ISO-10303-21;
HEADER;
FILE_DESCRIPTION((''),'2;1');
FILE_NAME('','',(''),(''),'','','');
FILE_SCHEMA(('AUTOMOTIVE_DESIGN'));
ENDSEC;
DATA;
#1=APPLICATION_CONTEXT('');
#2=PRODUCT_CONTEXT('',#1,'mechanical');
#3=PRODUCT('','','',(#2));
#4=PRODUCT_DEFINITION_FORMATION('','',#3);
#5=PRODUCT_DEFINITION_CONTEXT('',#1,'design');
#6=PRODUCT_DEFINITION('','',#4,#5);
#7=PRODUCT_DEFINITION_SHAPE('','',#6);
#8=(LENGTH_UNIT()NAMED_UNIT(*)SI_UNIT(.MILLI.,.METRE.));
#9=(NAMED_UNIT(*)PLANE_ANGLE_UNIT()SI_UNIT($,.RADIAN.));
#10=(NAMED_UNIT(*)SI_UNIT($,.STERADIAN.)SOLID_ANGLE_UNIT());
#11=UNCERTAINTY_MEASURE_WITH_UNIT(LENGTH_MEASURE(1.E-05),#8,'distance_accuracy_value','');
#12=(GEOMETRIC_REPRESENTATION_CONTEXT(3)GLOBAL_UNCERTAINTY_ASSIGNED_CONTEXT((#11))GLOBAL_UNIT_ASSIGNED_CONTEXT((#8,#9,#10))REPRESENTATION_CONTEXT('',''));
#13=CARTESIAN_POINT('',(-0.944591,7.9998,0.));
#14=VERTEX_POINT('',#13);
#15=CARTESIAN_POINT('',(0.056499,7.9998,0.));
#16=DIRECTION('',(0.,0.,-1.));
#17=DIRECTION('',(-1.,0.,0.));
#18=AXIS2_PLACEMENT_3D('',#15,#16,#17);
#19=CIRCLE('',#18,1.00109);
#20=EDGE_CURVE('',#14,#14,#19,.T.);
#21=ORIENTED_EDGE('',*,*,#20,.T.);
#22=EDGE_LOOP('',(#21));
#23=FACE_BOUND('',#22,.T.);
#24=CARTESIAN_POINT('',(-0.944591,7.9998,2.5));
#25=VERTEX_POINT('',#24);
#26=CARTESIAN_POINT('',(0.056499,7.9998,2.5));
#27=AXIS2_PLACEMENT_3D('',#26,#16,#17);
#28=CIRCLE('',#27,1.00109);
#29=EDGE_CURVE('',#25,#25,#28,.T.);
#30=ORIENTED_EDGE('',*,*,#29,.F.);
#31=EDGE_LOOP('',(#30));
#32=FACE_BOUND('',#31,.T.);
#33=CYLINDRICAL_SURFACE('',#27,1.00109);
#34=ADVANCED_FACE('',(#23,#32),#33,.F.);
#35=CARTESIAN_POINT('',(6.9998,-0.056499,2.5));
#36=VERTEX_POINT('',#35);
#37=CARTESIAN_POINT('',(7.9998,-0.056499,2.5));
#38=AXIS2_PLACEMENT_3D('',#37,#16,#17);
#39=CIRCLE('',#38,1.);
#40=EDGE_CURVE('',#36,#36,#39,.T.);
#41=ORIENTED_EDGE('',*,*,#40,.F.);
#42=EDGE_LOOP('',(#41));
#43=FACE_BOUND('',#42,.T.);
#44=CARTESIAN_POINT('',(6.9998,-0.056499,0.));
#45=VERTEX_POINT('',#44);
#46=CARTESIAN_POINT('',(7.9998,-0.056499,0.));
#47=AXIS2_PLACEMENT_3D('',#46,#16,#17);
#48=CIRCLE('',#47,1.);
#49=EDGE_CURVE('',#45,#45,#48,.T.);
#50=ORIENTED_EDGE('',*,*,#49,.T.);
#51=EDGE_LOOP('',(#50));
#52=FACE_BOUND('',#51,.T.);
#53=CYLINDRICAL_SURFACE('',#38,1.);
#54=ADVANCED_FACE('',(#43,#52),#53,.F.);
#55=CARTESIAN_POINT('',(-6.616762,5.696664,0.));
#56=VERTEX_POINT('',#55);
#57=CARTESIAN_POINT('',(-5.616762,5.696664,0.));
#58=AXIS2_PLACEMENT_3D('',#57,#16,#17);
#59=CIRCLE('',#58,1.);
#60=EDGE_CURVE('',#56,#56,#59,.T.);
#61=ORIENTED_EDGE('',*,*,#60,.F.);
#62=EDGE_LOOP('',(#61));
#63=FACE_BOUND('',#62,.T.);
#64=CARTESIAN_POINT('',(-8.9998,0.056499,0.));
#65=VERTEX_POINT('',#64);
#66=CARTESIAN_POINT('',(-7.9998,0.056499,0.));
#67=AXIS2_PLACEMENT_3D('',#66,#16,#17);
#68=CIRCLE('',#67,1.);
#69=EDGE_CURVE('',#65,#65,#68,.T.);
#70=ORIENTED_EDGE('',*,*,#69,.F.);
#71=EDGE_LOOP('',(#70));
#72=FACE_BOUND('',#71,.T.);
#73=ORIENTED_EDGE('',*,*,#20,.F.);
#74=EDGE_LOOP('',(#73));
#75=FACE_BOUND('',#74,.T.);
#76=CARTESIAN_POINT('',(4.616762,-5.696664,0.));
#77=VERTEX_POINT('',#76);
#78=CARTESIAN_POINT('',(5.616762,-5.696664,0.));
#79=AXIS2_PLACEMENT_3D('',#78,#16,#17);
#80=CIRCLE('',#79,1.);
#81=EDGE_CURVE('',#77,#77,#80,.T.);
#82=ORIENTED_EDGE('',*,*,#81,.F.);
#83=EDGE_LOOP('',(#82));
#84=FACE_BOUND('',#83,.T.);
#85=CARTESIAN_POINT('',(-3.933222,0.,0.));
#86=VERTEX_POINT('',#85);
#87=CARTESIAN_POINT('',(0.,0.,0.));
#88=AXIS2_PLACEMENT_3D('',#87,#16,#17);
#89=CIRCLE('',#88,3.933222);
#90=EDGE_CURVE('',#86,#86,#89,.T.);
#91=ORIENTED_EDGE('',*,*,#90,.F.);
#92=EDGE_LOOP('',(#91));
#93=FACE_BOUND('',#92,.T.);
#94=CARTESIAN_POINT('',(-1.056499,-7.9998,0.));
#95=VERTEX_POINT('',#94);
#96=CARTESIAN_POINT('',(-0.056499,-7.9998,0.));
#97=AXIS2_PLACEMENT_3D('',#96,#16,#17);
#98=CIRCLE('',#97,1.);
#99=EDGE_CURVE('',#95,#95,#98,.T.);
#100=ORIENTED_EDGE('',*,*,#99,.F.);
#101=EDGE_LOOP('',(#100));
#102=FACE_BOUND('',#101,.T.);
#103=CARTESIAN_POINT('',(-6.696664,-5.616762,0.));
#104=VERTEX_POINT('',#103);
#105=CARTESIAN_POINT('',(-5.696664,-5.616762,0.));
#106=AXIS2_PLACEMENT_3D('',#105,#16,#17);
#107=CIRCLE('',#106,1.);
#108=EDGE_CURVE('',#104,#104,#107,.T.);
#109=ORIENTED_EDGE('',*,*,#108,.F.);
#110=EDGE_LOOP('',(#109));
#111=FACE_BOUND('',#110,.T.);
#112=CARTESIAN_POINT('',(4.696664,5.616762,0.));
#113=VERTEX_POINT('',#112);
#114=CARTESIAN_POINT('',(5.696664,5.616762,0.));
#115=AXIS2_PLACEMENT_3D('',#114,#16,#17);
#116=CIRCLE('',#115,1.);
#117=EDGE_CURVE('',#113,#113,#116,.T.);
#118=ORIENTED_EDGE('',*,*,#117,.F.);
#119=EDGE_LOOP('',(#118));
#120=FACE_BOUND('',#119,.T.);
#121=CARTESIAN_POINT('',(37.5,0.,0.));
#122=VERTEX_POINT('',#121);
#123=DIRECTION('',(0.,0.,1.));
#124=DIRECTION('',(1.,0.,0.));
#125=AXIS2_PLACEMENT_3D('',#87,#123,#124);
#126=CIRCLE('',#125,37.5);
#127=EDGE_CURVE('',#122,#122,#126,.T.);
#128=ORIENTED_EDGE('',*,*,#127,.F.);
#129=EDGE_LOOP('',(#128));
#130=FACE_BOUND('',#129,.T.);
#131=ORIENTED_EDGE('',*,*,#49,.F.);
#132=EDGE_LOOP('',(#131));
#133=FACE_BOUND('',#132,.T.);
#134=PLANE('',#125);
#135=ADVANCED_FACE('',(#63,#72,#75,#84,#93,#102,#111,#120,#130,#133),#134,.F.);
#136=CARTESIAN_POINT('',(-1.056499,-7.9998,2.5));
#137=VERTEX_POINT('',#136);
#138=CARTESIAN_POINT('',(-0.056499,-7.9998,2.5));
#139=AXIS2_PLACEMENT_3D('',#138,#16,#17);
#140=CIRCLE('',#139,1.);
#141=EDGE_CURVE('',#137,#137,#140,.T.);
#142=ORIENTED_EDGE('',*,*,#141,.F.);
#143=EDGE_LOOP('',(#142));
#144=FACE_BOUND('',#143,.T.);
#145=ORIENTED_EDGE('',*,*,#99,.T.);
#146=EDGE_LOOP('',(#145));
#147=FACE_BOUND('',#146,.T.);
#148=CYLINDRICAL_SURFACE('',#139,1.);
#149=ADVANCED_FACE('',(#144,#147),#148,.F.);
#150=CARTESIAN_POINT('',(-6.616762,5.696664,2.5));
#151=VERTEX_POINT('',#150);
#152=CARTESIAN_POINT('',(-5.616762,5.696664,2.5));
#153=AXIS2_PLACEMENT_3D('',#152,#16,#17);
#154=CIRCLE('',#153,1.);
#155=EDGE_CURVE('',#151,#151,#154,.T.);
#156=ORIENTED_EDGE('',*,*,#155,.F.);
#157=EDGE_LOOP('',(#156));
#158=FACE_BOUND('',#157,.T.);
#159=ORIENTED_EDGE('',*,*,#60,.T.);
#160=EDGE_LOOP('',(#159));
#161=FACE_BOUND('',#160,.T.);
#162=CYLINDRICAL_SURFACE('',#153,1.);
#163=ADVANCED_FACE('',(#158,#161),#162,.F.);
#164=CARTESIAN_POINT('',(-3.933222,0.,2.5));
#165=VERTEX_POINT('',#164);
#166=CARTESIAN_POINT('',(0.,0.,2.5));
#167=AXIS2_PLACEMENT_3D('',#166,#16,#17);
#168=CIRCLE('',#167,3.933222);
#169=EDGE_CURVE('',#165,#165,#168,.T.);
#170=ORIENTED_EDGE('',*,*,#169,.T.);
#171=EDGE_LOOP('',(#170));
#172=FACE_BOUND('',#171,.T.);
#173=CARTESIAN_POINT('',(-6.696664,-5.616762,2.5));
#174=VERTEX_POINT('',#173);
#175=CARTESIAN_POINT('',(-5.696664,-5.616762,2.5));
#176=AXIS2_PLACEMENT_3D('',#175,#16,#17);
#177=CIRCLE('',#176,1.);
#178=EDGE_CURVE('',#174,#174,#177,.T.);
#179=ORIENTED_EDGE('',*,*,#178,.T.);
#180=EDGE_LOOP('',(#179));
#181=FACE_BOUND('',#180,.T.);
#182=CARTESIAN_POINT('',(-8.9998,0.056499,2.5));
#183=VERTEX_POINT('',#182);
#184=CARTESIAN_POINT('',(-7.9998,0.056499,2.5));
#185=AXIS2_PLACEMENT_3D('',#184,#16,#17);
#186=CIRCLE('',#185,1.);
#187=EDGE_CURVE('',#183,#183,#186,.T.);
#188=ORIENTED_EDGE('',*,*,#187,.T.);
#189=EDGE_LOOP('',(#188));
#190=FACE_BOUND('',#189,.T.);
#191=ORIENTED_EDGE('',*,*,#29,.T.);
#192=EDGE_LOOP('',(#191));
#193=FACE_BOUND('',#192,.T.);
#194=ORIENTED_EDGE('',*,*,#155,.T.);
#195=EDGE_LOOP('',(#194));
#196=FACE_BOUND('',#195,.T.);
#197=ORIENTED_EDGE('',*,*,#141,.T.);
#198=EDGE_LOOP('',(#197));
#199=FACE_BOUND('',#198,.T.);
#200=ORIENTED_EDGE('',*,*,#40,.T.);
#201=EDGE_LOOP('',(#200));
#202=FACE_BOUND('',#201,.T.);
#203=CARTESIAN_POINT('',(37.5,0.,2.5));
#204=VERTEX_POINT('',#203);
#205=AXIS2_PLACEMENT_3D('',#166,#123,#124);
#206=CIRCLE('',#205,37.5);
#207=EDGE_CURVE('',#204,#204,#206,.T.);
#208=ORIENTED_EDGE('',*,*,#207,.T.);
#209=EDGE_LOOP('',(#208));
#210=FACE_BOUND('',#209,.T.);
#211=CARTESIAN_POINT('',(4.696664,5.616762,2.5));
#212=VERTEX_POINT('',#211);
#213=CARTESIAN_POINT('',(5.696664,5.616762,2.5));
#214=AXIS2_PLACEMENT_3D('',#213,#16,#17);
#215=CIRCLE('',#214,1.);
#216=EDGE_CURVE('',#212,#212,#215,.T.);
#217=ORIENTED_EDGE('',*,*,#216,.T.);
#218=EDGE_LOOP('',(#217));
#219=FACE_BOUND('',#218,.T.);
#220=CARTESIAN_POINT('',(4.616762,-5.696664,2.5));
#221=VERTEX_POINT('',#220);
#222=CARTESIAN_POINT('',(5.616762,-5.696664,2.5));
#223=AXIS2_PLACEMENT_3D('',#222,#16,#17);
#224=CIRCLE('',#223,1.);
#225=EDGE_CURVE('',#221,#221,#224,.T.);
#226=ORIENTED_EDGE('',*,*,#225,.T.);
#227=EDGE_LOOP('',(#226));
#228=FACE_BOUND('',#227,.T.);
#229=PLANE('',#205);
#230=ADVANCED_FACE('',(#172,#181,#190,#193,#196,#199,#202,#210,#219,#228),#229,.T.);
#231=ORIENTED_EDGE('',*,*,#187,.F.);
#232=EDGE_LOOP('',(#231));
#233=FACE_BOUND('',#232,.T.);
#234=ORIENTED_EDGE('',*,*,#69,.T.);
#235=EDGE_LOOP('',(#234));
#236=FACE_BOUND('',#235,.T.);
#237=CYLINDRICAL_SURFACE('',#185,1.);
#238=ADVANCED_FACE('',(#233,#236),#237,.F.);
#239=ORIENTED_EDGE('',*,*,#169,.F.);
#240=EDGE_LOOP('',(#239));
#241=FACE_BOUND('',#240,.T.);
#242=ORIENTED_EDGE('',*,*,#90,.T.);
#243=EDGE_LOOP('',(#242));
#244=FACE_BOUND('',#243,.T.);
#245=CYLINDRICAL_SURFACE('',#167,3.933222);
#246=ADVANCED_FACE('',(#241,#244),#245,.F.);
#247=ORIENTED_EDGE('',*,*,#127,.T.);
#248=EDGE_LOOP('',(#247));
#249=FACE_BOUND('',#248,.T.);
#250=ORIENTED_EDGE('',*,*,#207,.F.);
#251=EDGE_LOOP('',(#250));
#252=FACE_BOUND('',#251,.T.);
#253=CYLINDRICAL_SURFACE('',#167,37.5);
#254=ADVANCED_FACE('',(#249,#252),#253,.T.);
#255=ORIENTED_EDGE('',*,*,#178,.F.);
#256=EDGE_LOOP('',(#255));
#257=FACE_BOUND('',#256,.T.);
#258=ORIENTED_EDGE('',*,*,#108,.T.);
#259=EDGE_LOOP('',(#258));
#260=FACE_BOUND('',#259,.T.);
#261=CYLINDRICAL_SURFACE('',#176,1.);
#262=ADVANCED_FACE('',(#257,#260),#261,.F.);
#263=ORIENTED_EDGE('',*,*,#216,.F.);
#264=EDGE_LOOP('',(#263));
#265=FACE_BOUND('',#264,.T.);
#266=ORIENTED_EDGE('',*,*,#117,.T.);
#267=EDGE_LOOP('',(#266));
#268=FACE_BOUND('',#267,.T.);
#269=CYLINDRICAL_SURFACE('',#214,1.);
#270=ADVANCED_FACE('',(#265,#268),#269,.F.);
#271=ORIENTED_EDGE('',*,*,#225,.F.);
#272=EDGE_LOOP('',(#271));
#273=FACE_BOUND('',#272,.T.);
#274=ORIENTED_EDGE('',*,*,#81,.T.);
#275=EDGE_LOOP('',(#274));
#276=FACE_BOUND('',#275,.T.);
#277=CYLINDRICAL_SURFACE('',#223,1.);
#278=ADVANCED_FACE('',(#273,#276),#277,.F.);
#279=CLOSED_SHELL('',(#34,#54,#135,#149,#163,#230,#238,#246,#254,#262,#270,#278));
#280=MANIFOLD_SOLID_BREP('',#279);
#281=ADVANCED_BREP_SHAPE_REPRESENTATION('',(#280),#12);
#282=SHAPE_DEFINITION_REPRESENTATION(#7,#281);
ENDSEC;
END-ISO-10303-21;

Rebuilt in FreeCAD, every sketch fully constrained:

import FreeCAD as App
import Part
import Sketcher

V = App.Vector

doc = App.newDocument("Part")
body = doc.addObject("PartDesign::Body", "Body")

# Sketch on XY plane
sketch1 = body.newObject("Sketcher::SketchObject", "Sketch")
sketch1.AttachmentSupport = (doc.getObject("XY_Plane"), [""])
sketch1.MapMode = "FlatFace"
sketch1.addGeometry(Part.Circle(V(0, 0, 0), V(0, 0, 1), 37.5), False)
sketch1.addConstraint([
    Sketcher.Constraint("Coincident", 0, 3, -1, 1),
    Sketcher.Constraint("Diameter", 0, 75.0),
])
pad1 = body.newObject("PartDesign::Pad", "Pad")
pad1.Profile = sketch1
pad1.Length = 2.5

# Sketch on XY plane
sketch2 = body.newObject("Sketcher::SketchObject", "Sketch001")
sketch2.AttachmentSupport = (doc.getObject("XY_Plane"), [""])
sketch2.MapMode = "FlatFace"
sketch2.addGeometry([
    Part.Circle(V(0, 0, 0), V(0, 0, 1), 3.933222),  # 0
    Part.Circle(V(-0.056499, -7.9998, 0), V(0, 0, 1), 1),  # 1
    Part.Circle(V(5.616762, -5.696664, 0), V(0, 0, 1), 1),  # 2
    Part.Circle(V(7.9998, -0.056499, 0), V(0, 0, 1), 1),  # 3
    Part.Circle(V(5.696664, 5.616762, 0), V(0, 0, 1), 1),  # 4
    Part.Circle(V(0.056499, 7.9998, 0), V(0, 0, 1), 1.00109),  # 5
    Part.Circle(V(-5.616762, 5.696664, 0), V(0, 0, 1), 1),  # 6
    Part.Circle(V(-7.9998, 0.056499, 0), V(0, 0, 1), 1),  # 7
    Part.Circle(V(-5.696664, -5.616762, 0), V(0, 0, 1), 1),  # 8
], False)
sketch2.addConstraint([
    Sketcher.Constraint("Coincident", 0, 3, -1, 1),
    Sketcher.Constraint("Equal", 1, 2),
    Sketcher.Constraint("Equal", 2, 3),
    Sketcher.Constraint("Equal", 3, 4),
    Sketcher.Constraint("Equal", 4, 6),
    Sketcher.Constraint("Equal", 6, 7),
    Sketcher.Constraint("Equal", 7, 8),
    Sketcher.Constraint("Symmetric", 1, 3, 5, 3, -1, 1),
    Sketcher.Constraint("Symmetric", 2, 3, 6, 3, -1, 1),
    Sketcher.Constraint("Symmetric", 3, 3, 7, 3, -1, 1),
    Sketcher.Constraint("Symmetric", 4, 3, 8, 3, -1, 1),
    Sketcher.Constraint("Diameter", 1, 2.0),
    Sketcher.Constraint("Diameter", 5, 2.00218),
    Sketcher.Constraint("Diameter", 0, 7.866445),
    Sketcher.Constraint("DistanceX", 1, 3, 5, 3, 0.112999),
    Sketcher.Constraint("DistanceY", 1, 3, -1, 1, 7.9998),
    Sketcher.Constraint("DistanceX", -1, 1, 3, 3, 7.9998),
    Sketcher.Constraint("DistanceY", 3, 3, -1, 1, 0.056499),
    Sketcher.Constraint("DistanceX", 1, 3, 2, 3, 5.673261),
    Sketcher.Constraint("DistanceY", 3, 3, 4, 3, 5.673261),
    Sketcher.Constraint("DistanceY", 2, 3, -1, 1, 5.696664),
    Sketcher.Constraint("DistanceX", -1, 1, 4, 3, 5.696664),
])
pocket1 = body.newObject("PartDesign::Pocket", "Pocket")
pocket1.Profile = sketch2
pocket1.Type = "ThroughAll"
pocket1.Reversed = True

doc.recompute()
